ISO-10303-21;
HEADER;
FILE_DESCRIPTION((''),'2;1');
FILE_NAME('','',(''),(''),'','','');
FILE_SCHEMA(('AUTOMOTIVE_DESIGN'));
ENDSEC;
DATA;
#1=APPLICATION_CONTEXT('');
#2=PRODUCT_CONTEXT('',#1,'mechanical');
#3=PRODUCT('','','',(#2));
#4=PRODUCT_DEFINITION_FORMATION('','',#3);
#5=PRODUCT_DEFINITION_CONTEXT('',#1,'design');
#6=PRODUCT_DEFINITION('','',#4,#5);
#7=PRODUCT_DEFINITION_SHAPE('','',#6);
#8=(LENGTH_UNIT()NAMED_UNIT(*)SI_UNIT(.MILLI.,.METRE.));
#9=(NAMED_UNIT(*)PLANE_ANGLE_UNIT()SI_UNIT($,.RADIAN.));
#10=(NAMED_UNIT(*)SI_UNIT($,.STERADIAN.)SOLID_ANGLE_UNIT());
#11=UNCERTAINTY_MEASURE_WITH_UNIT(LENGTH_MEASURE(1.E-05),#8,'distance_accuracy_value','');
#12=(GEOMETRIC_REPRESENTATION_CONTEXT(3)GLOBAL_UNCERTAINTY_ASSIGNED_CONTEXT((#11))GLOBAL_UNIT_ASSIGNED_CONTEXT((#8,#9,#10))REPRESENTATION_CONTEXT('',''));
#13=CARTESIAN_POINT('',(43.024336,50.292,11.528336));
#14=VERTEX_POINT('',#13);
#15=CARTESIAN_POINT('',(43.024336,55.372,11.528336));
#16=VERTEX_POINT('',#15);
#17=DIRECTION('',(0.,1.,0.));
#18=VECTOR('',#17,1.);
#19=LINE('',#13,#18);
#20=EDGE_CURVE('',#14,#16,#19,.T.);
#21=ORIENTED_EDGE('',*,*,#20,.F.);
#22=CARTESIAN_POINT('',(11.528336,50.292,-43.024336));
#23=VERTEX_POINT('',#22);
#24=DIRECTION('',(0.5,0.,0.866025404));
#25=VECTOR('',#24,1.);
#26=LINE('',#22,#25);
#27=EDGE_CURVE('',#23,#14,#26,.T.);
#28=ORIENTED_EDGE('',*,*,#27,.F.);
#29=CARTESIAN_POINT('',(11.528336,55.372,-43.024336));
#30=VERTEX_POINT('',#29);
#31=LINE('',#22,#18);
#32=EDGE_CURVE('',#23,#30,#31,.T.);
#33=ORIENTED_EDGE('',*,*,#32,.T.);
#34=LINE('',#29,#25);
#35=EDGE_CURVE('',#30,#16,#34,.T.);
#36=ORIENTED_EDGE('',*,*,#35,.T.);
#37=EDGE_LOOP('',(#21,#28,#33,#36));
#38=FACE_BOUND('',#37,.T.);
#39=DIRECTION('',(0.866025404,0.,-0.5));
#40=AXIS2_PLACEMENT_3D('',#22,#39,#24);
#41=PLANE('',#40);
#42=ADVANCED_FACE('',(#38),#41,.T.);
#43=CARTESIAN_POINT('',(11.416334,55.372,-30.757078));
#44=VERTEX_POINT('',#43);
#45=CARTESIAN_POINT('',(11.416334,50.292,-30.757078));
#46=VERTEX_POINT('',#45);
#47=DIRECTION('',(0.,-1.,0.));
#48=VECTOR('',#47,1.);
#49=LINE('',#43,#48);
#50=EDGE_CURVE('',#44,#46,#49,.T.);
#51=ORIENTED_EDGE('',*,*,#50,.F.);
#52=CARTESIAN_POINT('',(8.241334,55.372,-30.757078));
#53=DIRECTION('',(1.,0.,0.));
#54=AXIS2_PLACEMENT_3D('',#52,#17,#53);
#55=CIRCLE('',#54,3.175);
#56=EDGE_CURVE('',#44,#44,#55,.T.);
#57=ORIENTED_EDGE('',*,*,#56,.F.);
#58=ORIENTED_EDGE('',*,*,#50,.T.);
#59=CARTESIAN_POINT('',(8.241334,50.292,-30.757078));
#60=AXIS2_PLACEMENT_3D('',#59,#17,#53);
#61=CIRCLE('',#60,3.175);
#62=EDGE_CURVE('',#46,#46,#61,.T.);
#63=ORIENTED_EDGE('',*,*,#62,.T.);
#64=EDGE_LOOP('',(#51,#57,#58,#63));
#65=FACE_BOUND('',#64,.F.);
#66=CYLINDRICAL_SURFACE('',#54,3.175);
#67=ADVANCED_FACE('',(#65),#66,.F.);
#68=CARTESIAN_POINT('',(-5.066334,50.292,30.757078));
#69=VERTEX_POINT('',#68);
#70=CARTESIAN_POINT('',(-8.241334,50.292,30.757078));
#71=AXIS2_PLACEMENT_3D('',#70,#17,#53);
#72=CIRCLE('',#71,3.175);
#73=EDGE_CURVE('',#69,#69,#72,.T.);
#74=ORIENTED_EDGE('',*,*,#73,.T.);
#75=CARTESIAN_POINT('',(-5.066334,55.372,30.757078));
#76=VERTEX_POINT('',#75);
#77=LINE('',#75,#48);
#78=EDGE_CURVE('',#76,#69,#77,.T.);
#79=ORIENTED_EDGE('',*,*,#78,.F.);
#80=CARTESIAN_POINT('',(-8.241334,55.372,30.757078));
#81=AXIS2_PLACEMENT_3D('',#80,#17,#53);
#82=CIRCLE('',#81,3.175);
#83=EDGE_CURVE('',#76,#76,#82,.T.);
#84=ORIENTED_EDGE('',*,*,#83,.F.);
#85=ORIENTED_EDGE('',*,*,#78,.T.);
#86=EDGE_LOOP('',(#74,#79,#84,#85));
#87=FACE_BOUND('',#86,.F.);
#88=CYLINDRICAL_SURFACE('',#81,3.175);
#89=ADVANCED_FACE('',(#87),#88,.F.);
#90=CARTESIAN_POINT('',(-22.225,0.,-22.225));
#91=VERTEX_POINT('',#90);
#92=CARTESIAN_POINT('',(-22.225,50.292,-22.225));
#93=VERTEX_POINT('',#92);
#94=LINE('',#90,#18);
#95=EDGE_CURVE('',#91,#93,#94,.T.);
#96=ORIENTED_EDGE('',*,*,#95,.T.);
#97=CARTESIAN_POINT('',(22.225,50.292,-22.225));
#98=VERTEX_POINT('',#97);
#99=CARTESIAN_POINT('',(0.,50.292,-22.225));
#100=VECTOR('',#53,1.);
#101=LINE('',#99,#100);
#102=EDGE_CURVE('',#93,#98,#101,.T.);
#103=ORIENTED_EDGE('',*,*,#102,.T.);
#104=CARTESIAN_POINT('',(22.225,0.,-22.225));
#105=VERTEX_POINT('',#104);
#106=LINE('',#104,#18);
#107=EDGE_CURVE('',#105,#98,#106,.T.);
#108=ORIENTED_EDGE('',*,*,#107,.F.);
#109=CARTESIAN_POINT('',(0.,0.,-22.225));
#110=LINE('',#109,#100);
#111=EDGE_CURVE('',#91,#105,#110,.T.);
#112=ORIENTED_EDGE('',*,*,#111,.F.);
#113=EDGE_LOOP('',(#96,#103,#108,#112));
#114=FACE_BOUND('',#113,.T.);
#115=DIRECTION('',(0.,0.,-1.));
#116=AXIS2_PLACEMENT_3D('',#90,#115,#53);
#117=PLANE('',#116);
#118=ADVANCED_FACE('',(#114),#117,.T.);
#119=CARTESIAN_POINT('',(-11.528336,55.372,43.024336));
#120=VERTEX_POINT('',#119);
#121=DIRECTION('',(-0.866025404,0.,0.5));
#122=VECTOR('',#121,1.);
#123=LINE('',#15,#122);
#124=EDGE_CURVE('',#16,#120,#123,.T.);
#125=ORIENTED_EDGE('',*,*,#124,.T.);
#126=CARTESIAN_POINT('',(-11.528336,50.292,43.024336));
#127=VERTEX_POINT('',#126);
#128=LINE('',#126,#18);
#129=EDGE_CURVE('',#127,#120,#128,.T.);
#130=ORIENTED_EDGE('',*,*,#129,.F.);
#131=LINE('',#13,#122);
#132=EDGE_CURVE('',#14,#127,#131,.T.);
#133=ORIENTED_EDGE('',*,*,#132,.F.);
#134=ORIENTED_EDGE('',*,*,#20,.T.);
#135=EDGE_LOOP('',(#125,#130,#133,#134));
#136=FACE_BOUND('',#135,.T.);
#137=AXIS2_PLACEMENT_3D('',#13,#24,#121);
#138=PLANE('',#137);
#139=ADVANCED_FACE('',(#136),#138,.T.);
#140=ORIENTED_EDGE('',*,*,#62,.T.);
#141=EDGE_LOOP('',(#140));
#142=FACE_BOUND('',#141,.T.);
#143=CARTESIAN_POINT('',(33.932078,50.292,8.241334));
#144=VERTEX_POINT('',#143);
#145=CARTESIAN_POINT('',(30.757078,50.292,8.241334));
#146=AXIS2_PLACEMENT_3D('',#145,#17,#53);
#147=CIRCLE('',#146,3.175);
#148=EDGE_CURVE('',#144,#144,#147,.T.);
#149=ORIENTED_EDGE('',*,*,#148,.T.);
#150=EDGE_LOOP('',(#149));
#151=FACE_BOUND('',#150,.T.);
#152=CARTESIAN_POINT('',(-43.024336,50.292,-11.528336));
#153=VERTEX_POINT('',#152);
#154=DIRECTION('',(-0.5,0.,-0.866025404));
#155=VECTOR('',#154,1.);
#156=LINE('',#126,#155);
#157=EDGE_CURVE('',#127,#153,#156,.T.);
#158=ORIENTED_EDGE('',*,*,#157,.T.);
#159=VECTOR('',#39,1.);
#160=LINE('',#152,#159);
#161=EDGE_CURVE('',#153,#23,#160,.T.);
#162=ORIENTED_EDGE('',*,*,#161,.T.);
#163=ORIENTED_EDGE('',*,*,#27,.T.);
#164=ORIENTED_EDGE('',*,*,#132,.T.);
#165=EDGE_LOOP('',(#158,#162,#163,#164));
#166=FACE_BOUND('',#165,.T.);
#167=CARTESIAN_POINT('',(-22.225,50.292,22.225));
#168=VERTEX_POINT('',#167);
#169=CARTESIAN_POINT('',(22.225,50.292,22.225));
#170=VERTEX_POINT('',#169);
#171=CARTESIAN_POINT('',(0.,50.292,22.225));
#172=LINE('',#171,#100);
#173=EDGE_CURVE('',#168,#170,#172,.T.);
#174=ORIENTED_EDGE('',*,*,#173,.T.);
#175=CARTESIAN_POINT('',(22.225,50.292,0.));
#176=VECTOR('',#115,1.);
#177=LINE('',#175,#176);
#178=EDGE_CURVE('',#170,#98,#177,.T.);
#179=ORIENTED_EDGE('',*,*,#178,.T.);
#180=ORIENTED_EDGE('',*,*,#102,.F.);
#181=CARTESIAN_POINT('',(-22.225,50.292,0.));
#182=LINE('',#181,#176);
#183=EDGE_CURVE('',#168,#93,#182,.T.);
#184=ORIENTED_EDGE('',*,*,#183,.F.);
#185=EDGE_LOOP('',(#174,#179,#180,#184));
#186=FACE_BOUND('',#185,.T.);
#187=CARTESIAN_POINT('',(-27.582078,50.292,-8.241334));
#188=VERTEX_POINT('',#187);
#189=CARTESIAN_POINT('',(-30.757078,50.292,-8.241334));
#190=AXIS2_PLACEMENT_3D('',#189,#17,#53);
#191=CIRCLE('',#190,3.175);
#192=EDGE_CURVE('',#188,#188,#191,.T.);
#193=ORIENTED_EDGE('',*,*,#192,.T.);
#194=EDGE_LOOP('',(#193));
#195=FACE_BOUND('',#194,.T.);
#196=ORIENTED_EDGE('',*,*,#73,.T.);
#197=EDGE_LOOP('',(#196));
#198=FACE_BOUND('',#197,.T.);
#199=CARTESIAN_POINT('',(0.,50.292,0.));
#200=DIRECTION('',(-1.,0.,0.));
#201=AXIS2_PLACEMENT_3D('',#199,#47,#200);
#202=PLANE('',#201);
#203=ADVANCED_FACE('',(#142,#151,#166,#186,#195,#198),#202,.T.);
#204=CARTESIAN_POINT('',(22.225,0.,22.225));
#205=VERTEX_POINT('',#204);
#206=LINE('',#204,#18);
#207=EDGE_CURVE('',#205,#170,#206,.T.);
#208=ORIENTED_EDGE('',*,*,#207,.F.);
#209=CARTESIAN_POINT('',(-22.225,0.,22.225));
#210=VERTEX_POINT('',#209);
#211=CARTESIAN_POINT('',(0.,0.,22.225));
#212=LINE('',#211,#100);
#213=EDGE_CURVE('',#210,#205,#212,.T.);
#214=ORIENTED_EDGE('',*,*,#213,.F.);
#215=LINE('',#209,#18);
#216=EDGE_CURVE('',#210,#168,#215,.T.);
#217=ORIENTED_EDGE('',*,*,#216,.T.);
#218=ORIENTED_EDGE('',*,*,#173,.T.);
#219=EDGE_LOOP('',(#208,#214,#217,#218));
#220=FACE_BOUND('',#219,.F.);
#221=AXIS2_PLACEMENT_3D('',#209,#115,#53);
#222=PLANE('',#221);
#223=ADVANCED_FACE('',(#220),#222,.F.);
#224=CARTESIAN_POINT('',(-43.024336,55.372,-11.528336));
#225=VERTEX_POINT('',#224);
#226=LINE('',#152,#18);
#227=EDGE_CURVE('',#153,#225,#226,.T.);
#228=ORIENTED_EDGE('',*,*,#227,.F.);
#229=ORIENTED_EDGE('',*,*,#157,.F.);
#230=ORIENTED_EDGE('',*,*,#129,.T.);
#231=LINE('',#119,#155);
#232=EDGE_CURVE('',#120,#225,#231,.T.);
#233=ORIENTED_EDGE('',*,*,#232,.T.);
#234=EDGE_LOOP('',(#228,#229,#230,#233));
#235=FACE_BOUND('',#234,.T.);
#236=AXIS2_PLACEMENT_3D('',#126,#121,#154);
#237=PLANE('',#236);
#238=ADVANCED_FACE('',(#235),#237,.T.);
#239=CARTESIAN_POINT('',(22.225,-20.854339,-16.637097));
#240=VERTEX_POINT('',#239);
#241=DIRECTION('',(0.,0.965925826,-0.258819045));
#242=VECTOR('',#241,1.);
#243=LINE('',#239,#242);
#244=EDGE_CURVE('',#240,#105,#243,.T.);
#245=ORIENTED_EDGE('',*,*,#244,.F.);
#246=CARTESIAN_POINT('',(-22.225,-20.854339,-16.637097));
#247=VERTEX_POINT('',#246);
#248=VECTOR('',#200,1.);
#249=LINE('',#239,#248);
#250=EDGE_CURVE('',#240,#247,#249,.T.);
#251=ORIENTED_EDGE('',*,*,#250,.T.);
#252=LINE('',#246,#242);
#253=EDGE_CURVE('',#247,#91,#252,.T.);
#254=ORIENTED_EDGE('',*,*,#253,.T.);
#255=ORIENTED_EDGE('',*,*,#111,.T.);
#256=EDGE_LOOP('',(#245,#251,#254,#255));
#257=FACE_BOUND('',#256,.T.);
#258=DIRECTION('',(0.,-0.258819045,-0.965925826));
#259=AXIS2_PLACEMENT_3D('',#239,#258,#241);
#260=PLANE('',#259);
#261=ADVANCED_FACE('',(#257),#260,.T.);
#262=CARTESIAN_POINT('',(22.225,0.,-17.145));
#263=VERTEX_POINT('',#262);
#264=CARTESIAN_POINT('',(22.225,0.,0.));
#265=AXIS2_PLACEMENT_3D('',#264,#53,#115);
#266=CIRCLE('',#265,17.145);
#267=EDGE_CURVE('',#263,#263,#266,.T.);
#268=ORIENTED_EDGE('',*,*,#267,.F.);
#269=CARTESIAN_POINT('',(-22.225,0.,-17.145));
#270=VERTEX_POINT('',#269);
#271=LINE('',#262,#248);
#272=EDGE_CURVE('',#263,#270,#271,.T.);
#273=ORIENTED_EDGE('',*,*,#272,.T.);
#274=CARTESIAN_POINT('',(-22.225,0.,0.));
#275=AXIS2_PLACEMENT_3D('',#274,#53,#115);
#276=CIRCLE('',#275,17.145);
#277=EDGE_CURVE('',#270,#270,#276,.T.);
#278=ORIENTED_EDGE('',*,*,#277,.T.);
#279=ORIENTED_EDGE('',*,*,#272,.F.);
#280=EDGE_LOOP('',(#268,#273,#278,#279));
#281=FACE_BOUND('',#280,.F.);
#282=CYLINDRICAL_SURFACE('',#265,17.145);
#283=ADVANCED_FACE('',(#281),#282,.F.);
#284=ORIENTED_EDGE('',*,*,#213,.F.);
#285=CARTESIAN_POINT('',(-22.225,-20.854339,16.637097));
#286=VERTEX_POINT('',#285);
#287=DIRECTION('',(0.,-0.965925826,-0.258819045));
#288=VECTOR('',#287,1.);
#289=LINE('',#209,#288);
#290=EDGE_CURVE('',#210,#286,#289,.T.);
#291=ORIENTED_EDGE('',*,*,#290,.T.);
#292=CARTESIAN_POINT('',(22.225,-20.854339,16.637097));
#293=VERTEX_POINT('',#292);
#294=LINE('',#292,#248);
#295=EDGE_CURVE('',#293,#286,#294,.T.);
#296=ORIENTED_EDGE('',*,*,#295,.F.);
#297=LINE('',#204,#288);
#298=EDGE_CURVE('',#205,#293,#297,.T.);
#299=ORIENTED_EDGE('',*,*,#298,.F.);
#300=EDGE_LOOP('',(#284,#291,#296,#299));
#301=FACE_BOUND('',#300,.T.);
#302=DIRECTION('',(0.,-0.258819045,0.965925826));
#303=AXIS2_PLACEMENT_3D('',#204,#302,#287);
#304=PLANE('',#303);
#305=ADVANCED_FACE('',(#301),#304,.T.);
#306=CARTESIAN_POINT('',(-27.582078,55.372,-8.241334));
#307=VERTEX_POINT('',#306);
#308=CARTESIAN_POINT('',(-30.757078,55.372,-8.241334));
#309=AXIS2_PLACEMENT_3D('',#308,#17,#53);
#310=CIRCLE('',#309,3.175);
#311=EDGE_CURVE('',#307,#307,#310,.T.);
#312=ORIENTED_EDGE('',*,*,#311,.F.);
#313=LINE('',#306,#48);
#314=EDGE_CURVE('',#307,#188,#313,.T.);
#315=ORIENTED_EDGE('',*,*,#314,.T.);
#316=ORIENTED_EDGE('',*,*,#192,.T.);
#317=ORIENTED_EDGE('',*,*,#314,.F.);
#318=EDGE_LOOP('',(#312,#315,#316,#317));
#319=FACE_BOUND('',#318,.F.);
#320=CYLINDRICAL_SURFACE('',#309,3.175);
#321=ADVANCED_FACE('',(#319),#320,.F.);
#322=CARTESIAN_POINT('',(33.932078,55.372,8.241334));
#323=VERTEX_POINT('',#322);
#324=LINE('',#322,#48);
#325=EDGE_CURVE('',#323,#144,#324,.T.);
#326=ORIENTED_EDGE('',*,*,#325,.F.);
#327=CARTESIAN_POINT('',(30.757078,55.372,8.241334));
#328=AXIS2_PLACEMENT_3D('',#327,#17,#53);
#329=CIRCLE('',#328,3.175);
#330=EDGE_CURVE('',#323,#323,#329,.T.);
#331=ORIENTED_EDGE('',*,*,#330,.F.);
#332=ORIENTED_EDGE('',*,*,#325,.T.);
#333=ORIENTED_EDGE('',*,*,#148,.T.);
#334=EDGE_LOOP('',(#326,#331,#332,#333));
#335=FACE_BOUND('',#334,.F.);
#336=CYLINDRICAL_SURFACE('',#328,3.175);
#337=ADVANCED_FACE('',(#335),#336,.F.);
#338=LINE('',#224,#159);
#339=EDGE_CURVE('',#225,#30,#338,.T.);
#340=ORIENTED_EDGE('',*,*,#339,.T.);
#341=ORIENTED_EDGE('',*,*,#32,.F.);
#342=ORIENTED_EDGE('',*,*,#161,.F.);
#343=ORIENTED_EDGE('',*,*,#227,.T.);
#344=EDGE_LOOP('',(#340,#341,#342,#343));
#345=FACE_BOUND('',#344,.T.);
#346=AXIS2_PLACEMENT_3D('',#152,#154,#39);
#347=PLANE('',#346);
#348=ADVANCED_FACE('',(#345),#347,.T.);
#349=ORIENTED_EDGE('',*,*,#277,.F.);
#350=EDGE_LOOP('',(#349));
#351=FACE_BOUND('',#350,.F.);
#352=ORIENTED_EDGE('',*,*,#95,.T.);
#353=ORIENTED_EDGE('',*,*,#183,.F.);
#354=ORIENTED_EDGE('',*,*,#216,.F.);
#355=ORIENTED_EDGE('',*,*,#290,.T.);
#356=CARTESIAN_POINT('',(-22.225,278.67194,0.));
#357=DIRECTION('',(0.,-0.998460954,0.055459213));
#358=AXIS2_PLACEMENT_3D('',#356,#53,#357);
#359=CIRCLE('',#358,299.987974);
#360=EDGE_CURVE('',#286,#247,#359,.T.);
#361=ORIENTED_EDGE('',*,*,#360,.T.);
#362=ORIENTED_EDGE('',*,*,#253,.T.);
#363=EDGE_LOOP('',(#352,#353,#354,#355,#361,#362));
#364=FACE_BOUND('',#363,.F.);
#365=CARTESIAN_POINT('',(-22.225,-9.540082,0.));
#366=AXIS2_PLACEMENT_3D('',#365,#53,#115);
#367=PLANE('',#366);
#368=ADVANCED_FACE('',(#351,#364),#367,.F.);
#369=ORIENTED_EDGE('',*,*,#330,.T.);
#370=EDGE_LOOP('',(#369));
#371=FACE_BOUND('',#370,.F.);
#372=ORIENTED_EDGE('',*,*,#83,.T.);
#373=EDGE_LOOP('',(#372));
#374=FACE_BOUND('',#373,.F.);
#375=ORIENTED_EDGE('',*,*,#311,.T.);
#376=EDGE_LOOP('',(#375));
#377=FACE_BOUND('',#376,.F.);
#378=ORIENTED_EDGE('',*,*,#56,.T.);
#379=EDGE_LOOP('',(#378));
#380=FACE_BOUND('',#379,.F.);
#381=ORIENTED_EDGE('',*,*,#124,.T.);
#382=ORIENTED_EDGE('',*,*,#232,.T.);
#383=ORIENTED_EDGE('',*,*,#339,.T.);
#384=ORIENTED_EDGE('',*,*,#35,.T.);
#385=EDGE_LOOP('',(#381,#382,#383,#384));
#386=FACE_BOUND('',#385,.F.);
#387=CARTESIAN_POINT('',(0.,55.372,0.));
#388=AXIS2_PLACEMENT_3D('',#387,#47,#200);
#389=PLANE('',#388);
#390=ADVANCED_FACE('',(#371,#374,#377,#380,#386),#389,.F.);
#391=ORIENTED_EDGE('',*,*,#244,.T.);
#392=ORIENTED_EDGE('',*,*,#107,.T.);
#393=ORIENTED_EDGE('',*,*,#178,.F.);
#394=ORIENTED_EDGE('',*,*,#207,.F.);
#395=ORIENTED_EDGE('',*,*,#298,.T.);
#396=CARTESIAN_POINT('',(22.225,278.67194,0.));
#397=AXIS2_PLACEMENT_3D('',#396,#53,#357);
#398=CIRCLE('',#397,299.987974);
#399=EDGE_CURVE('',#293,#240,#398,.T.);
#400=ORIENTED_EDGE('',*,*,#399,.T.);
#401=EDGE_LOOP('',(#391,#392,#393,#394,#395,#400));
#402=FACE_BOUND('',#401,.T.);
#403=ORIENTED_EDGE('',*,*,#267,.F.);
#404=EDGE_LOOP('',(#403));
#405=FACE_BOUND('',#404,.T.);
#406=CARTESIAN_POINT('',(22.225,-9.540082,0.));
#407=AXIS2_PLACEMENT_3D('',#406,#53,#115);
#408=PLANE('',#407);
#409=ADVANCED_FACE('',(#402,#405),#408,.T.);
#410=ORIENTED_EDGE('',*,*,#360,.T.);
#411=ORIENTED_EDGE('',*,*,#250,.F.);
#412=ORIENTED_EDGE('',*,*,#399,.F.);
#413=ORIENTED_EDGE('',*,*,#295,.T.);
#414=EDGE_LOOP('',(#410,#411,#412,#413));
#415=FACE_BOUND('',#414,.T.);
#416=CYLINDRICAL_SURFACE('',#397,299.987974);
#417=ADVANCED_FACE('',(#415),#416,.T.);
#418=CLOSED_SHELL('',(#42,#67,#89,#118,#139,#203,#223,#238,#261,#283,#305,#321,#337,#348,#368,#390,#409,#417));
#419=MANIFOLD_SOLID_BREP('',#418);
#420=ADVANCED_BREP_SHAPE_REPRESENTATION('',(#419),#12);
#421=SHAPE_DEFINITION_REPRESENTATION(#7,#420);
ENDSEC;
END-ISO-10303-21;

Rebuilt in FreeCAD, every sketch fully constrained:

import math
import FreeCAD as App
import Part
import Sketcher
Q = App.Units.Quantity


def add_polygon(sketch, points):
    """Adds a closed chain of lines whose ends are joined by coincident constraints."""
    first, n = sketch.GeometryCount, len(points)
    for a, b in zip(points, points[1:] + points[:1]):
        sketch.addGeometry(Part.LineSegment(App.Vector(*a, 0), App.Vector(*b, 0)), False)
    for i in range(n):
        sketch.addConstraint(Sketcher.Constraint("Coincident", first + i, 2, first + (i + 1) % n, 1))

doc = App.newDocument("Part")
body = doc.addObject("PartDesign::Body", "Body")

# Sketch on XZ plane
sketch1 = body.newObject("Sketcher::SketchObject", "Sketch")
sketch1.AttachmentSupport = (doc.getObject("XZ_Plane"), [""])
sketch1.MapMode = "FlatFace"
add_polygon(sketch1, [(-22, -22), (-22, 22), (22, 22), (22, -22)])  # lines 0-3
sketch1.addConstraint(Sketcher.Constraint("Vertical", 0))
sketch1.addConstraint(Sketcher.Constraint("Horizontal", 1))
sketch1.addConstraint(Sketcher.Constraint("Vertical", 2))
sketch1.addConstraint(Sketcher.Constraint("Horizontal", 3))
sketch1.addConstraint(Sketcher.Constraint("Symmetric", 0, 2, 2, 2, -1, 1))
sketch1.addConstraint(Sketcher.Constraint("Equal", 3, 0))
sketch1.addConstraint(Sketcher.Constraint("DistanceX", 1, 1, 1, 2, Q("1.75 in")))
pad1 = body.newObject("PartDesign::Pad", "Pad")
pad1.Profile = sketch1
pad1.Length = Q("1.98 in")
pad1.Reversed = True

# Sketch on YZ plane
sketch2 = body.newObject("Sketcher::SketchObject", "Sketch001")
sketch2.AttachmentSupport = (doc.getObject("YZ_Plane"), [""])
sketch2.MapMode = "FlatFace"
sketch2.AttachmentOffset = App.Placement(App.Vector(0, 0, 0.875 * 25.4), App.Rotation())
sketch2.addGeometry(Part.LineSegment(App.Vector(0, 22, 0), App.Vector(-21, 17, 0)), False)
sketch2.addGeometry(Part.ArcOfCircle(Part.Circle(App.Vector(279, 0, 0), App.Vector(0, 0, 1), 300), math.radians(176.82), math.radians(183.18)), False)
sketch2.addGeometry(Part.LineSegment(App.Vector(-21, -17, 0), App.Vector(0, -22, 0)), False)
sketch2.addGeometry(Part.LineSegment(App.Vector(0, -22, 0), App.Vector(0, 22, 0)), False)
sketch2.addConstraint(Sketcher.Constraint("Coincident", 0, 2, 1, 1))
sketch2.addConstraint(Sketcher.Constraint("Coincident", 1, 2, 2, 1))
sketch2.addConstraint(Sketcher.Constraint("Coincident", 2, 2, 3, 1))
sketch2.addConstraint(Sketcher.Constraint("Coincident", 3, 2, 0, 1))
sketch2.addConstraint(Sketcher.Constraint("Vertical", 3))
sketch2.addConstraint(Sketcher.Constraint("Symmetric", 2, 2, 3, 2, -1, 1))
sketch2.addConstraint(Sketcher.Constraint("Symmetric", 0, 2, 1, 2, -1))
sketch2.addConstraint(Sketcher.Constraint("Angle", 0, Q("-165 deg")))
sketch2.addConstraint(Sketcher.Constraint("DistanceY", 3, 1, 3, 2, Q("1.75 in")))
sketch2.addConstraint(Sketcher.Constraint("Distance", 0, Q("0.85 in")))
sketch2.addConstraint(Sketcher.Constraint("Radius", 1, Q("299.987974 mm")))
pad2 = body.newObject("PartDesign::Pad", "Pad001")
pad2.Profile = sketch2
pad2.Length = Q("1.75 in")
pad2.Reversed = True

# Sketch on YZ plane
sketch3 = body.newObject("Sketcher::SketchObject", "Sketch002")
sketch3.AttachmentSupport = (doc.getObject("YZ_Plane"), [""])
sketch3.MapMode = "FlatFace"
sketch3.AttachmentOffset = App.Placement(App.Vector(0, 0, 0.875 * 25.4), App.Rotation())
sketch3.addGeometry(Part.Circle(App.Vector(0, 0, 0), App.Vector(0, 0, 1), 17), False)
sketch3.addConstraint(Sketcher.Constraint("Coincident", 0, 3, -1, 1))
sketch3.addConstraint(Sketcher.Constraint("Diameter", 0, Q("1.35 in")))
pocket1 = body.newObject("PartDesign::Pocket", "Pocket")
pocket1.Profile = sketch3
pocket1.Length = Q("5 in")

# Sketch on XZ plane
sketch4 = body.newObject("Sketcher::SketchObject", "Sketch003")
sketch4.AttachmentSupport = (doc.getObject("XZ_Plane"), [""])
sketch4.MapMode = "FlatFace"
sketch4.AttachmentOffset = App.Placement(App.Vector(0, 0, -1.98 * 25.4), App.Rotation())
add_polygon(sketch4, [(-12, 43), (43, 12), (12, -43), (-43, -12)])  # lines 0-3
sketch4.addConstraint(Sketcher.Constraint("Symmetric", 0, 2, 2, 2, -1, 1))
sketch4.addConstraint(Sketcher.Constraint("Symmetric", 1, 2, 3, 2, -1, 1))
sketch4.addConstraint(Sketcher.Constraint("Perpendicular", 0, 1))
sketch4.addConstraint(Sketcher.Constraint("Equal", 0, 1))
sketch4.addConstraint(Sketcher.Constraint("Angle", 0, Q("-30 deg")))
sketch4.addConstraint(Sketcher.Constraint("Distance", 0, Q("2.48 in")))
pad3 = body.newObject("PartDesign::Pad", "Pad002")
pad3.Profile = sketch4
pad3.Length = Q("0.2 in")
pad3.Reversed = True

# Sketch on XZ plane
sketch5 = body.newObject("Sketcher::SketchObject", "Sketch004")
sketch5.AttachmentSupport = (doc.getObject("XZ_Plane"), [""])
sketch5.MapMode = "FlatFace"
sketch5.AttachmentOffset = App.Placement(App.Vector(0, 0, -2.18 * 25.4), App.Rotation())
sketch5.addGeometry(Part.Circle(App.Vector(30.8, 8.2, 0), App.Vector(0, 0, 1), 3.2), False)
sketch5.addGeometry(Part.Circle(App.Vector(-8.2, 30.8, 0), App.Vector(0, 0, 1), 3.2), False)
sketch5.addGeometry(Part.Circle(App.Vector(8.2, -30.8, 0), App.Vector(0, 0, 1), 3.2), False)
sketch5.addGeometry(Part.Circle(App.Vector(-30.8, -8.2, 0), App.Vector(0, 0, 1), 3.2), False)
sketch5.addConstraint(Sketcher.Constraint("Equal", 0, 1))
sketch5.addConstraint(Sketcher.Constraint("Equal", 1, 2))
sketch5.addConstraint(Sketcher.Constraint("Equal", 2, 3))
sketch5.addConstraint(Sketcher.Constraint("Symmetric", 1, 3, 2, 3, -1, 1))
sketch5.addConstraint(Sketcher.Constraint("Symmetric", 0, 3, 3, 3, -1, 1))
sketch5.addConstraint(Sketcher.Constraint("Diameter", 0, Q("0.25 in")))
sketch5.addConstraint(Sketcher.Constraint("DistanceX", -1, 1, 0, 3, Q("30.757078 mm")))
sketch5.addConstraint(Sketcher.Constraint("DistanceY", -1, 1, 1, 3, Q("30.757078 mm")))
sketch5.addConstraint(Sketcher.Constraint("DistanceX", 1, 3, 2, 3, Q("16.482668 mm")))
sketch5.addConstraint(Sketcher.Constraint("DistanceY", 3, 3, 0, 3, Q("16.482668 mm")))
pocket2 = body.newObject("PartDesign::Pocket", "Pocket001")
pocket2.Profile = sketch5
pocket2.Type = "ThroughAll"
pocket2.Reversed = True

doc.recompute()
